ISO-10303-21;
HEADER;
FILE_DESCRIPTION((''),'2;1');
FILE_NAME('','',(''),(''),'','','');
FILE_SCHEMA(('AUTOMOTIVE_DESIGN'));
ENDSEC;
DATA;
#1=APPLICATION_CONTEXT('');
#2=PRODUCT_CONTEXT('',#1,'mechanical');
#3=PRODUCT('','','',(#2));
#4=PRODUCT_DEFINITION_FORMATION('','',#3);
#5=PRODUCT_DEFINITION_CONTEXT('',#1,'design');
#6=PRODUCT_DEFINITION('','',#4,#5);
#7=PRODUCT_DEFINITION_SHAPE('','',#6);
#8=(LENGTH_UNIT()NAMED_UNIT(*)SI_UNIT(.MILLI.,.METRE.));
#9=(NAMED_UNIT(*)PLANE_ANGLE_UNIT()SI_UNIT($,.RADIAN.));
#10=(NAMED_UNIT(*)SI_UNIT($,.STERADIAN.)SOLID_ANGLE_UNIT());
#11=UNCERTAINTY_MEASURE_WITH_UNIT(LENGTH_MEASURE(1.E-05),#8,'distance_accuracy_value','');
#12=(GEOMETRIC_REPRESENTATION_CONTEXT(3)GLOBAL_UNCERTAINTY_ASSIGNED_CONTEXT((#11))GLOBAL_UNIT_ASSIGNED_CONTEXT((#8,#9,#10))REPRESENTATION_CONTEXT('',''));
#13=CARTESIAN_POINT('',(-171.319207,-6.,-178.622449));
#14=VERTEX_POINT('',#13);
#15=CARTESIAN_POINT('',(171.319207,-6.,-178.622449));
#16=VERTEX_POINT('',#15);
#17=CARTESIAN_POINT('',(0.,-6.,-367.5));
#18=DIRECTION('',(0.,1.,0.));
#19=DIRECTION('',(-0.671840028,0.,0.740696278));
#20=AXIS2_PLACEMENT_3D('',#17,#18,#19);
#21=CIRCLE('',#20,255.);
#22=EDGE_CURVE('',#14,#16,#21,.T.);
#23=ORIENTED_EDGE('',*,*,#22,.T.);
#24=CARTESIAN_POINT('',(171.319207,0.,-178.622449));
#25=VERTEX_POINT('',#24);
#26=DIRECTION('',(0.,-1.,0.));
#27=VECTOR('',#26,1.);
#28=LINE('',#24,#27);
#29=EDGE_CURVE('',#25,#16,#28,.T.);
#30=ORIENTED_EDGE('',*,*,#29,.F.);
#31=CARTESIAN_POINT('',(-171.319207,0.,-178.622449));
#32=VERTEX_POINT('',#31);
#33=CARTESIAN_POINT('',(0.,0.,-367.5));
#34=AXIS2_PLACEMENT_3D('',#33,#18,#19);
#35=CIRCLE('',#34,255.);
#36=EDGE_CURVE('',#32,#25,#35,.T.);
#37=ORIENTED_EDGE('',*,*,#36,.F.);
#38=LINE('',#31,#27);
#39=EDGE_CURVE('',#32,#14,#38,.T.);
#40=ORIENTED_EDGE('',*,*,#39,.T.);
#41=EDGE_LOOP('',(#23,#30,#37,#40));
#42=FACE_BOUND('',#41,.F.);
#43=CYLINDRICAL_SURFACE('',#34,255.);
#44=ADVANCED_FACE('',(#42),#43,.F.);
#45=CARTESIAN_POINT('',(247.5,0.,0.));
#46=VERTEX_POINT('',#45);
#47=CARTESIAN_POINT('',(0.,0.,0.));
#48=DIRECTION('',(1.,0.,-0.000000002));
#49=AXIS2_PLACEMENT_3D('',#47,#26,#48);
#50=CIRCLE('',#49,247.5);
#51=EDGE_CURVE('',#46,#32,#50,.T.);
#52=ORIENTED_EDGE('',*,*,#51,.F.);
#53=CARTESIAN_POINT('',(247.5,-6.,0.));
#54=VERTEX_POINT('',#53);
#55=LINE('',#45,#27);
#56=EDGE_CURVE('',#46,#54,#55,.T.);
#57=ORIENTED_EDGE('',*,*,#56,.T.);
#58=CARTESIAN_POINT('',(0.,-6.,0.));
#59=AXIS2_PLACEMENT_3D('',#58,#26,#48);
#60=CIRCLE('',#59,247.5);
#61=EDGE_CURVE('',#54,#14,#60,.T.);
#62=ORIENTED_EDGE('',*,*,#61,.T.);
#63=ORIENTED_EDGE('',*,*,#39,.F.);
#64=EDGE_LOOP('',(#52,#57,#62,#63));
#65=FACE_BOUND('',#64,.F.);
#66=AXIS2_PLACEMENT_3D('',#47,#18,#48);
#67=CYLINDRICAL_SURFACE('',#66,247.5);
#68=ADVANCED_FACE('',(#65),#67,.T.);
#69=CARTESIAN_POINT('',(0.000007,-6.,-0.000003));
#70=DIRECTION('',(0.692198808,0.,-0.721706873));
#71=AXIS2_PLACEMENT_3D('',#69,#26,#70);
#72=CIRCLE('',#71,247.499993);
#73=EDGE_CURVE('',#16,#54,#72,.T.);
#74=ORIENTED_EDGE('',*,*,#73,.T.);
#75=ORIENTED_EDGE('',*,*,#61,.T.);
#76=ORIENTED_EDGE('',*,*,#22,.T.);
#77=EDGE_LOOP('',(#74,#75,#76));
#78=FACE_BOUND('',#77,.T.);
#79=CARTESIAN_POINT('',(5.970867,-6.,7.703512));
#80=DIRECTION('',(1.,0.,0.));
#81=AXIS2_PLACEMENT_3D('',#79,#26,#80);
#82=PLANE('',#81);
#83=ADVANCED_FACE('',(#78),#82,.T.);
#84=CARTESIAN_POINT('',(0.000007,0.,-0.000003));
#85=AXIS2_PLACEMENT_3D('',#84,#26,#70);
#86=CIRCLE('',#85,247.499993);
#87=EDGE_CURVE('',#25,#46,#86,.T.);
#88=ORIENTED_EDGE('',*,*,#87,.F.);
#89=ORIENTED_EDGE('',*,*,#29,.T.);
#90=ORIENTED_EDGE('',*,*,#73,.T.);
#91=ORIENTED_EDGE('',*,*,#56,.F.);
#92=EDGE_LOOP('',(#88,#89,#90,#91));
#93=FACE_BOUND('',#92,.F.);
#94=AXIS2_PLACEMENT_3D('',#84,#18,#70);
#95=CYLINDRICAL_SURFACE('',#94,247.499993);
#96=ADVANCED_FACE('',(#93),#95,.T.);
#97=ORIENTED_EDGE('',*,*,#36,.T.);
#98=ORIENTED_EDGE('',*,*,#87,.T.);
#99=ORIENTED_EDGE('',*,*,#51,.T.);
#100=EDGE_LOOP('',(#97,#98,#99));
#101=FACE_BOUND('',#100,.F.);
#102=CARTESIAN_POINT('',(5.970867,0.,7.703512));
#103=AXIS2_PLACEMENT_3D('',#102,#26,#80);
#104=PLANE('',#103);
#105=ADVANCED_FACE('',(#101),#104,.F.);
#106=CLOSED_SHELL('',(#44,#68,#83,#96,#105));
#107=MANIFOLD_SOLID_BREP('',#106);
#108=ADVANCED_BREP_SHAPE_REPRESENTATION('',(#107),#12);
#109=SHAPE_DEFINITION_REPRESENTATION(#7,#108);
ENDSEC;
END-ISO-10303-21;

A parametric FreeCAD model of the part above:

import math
import FreeCAD as App
import Part
import Sketcher

V = App.Vector
Q = App.Units.Quantity

doc = App.newDocument("Part")
params = doc.addObject("Spreadsheet::Sheet", "Params")
for row, (alias, value) in enumerate([
    ("sketch1_radius", "255 mm"),
    ("sketch1_radius2", "247.5 mm"),
    ("pad1_length", "6 mm"),
], start=1):
    params.set(f"A{row}", alias)
    params.set(f"B{row}", "=" + value)
    params.setAlias(f"B{row}", alias)

body = doc.addObject("PartDesign::Body", "Body")

# Sketch on XZ plane
sketch1 = doc.addObject("Sketcher::SketchObject", "Sketch")
body.addObject(sketch1)
sketch1.AttachmentSupport = (doc.XZ_Plane, [""])
sketch1.MapMode = "FlatFace"
sketch1.addGeometry([
    Part.ArcOfCircle(Part.Circle(V(0.000007, -0.000003, 0), V(0, 0, 1), 247.499993), math.radians(-46.195583), math.radians(0.000001)),
    Part.ArcOfCircle(Part.Circle(V(0, 0, 0), V(0, 0, 1), 247.5), math.radians(0), math.radians(226.195583)),
    Part.ArcOfCircle(Part.Circle(V(0, -367.5, 0), V(0, 0, 1), 255), math.radians(47.790762), math.radians(132.209238)),
], False)
sketch1.addConstraint([
    Sketcher.Constraint("Tangent", 0, 2, 1, 1),
    Sketcher.Constraint("Coincident", 1, 2, 2, 2),
    Sketcher.Constraint("Coincident", 2, 1, 0, 1),
    Sketcher.Constraint("Coincident", 0, 3, -1, 1),
    Sketcher.Constraint("Symmetric", 1, 2, 2, 1, -2),
    Sketcher.Constraint("PointOnObject", 0, 2, -1),
    Sketcher.Constraint("Radius", 2, Q("255 mm")),
    Sketcher.Constraint("Radius", 1, Q("247.5 mm")),
    Sketcher.Constraint("DistanceY", 2, 3, -1, 1, Q("367.5 mm")),
])
sketch1.setExpression("Constraints[6]", "Params.sketch1_radius")
sketch1.setExpression("Constraints[7]", "Params.sketch1_radius2")
pad1 = doc.addObject("PartDesign::Pad", "Pad")
body.addObject(pad1)
pad1.Profile = sketch1
pad1.setExpression("Length", "Params.pad1_length")

doc.recompute()
